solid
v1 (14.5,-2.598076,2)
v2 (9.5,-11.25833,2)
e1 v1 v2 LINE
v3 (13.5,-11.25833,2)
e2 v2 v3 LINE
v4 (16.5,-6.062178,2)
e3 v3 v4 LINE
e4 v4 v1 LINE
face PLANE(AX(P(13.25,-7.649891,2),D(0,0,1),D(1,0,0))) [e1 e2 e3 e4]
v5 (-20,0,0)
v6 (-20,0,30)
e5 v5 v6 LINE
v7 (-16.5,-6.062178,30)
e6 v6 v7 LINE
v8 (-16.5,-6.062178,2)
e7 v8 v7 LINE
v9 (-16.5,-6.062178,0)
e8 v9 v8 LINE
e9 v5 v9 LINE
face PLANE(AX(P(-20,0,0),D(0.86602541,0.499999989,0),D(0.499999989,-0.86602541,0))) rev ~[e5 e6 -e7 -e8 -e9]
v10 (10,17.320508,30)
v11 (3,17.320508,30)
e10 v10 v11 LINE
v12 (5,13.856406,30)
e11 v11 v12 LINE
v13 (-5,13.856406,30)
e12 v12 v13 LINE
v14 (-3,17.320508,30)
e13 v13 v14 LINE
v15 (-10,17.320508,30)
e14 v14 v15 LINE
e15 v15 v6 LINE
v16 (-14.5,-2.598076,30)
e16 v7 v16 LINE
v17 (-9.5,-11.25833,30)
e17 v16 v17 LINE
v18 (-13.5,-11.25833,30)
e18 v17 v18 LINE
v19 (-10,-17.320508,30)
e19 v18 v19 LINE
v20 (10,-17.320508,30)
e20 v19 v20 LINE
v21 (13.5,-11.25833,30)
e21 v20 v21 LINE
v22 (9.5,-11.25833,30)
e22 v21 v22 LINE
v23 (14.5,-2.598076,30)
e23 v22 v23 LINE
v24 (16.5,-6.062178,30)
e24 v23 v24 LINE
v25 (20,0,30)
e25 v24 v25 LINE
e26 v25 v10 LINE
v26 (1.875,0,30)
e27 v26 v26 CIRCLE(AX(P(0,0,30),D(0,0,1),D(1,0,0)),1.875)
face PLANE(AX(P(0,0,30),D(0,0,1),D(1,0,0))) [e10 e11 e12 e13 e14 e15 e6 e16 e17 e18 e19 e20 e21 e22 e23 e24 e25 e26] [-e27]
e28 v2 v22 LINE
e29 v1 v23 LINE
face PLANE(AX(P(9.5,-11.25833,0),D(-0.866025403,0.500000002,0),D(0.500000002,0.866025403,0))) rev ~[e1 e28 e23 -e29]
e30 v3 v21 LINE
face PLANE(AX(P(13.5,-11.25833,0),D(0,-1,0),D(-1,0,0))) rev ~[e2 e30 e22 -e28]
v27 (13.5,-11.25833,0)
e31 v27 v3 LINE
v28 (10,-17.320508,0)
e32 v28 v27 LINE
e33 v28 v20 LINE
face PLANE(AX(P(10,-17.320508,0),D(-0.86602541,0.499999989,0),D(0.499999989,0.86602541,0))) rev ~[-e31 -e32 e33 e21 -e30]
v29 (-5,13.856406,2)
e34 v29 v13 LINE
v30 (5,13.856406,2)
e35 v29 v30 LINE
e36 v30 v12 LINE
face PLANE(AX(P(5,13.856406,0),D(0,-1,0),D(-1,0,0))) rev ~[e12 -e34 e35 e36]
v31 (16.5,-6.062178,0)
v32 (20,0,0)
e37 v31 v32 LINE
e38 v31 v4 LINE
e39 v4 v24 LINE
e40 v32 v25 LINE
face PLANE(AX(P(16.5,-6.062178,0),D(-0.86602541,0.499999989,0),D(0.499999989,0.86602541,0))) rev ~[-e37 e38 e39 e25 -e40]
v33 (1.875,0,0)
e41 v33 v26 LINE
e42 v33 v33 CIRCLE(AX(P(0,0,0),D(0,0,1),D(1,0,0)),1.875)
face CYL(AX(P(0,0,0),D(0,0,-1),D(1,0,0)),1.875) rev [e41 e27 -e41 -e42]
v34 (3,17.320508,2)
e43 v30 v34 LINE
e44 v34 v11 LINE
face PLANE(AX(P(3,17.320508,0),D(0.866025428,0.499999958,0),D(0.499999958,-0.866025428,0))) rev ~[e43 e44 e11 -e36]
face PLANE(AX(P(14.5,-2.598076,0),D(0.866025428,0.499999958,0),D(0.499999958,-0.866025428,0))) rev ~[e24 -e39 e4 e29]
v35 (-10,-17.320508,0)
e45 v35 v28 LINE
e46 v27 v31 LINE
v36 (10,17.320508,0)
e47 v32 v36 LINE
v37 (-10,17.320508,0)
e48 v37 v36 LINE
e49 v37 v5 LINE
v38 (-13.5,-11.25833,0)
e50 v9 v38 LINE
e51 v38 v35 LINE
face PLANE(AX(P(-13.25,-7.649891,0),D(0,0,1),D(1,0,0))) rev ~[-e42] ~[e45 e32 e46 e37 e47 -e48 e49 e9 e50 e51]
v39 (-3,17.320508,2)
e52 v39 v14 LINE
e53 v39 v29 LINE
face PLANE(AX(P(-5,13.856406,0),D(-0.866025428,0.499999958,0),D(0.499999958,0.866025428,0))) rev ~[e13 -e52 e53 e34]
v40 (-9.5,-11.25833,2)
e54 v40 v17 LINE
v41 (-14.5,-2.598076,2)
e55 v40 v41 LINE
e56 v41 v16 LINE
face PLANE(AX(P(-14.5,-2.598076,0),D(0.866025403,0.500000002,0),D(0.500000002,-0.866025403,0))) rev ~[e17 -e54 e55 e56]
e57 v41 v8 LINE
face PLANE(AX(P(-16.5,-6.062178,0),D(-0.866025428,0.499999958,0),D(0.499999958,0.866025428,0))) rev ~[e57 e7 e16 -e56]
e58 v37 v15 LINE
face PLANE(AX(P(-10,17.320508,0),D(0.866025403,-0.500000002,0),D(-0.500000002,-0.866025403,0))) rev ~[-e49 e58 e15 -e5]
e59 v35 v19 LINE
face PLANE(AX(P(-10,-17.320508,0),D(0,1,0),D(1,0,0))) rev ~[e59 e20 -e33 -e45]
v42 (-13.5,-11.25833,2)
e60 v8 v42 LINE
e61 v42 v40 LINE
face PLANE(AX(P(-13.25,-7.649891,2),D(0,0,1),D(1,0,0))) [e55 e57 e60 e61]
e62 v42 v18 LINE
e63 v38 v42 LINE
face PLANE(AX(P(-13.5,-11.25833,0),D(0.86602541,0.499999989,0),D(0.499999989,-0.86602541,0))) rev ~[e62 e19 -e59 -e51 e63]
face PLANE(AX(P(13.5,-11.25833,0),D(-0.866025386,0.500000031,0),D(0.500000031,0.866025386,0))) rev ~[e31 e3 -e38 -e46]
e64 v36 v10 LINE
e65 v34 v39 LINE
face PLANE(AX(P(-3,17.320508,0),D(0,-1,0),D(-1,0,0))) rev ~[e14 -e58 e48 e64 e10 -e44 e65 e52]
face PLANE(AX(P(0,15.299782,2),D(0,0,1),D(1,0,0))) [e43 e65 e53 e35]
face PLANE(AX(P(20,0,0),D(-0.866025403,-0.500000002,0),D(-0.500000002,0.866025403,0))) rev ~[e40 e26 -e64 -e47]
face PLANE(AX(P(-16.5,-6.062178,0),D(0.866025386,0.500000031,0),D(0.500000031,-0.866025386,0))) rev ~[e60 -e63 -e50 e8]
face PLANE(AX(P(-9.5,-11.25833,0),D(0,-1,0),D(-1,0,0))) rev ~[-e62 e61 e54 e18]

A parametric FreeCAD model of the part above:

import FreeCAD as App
import Part
import Sketcher
from FreeCAD import Vector
Q = App.Units.Quantity


def add_polygon(sketch, points):
    """Adds a closed chain of lines whose ends are joined by coincident constraints."""
    first, n = sketch.GeometryCount, len(points)
    for a, b in zip(points, points[1:] + points[:1]):
        sketch.addGeometry(Part.LineSegment(App.Vector(*a, 0), App.Vector(*b, 0)), False)
    for i in range(n):
        sketch.addConstraint(Sketcher.Constraint("Coincident", first + i, 2, first + (i + 1) % n, 1))

doc = App.newDocument("Part")
body = doc.addObject("PartDesign::Body", "Body")

# Sketch on XY plane
sketch1 = body.newObject("Sketcher::SketchObject", "Sketch")
sketch1.AttachmentSupport = (doc.getObject("XY_Plane"), [""])
sketch1.MapMode = "FlatFace"
add_polygon(sketch1, [(16.5, -6.1), (20, 0), (10, 17.3), (3, 17.3), (5, 13.9), (-5, 13.9), (-3, 17.3), (-10, 17.3), (-20, 0), (-16.5, -6.1), (-14.5, -2.6), (-9.5, -11.3), (-13.5, -11.3), (-10, -17.3), (10, -17.3), (13.5, -11.3), (9.5, -11.3), (14.5, -2.6)])  # lines 0-17
sketch1.addGeometry(Part.Circle(Vector(0, 0, 0), Vector(0, 0, 1), 1.9), False)  # 18
sketch1.addConstraint(Sketcher.Constraint("Horizontal", 2))
sketch1.addConstraint(Sketcher.Constraint("Horizontal", 4))
sketch1.addConstraint(Sketcher.Constraint("Horizontal", 6))
sketch1.addConstraint(Sketcher.Constraint("Horizontal", 11))
sketch1.addConstraint(Sketcher.Constraint("Horizontal", 13))
sketch1.addConstraint(Sketcher.Constraint("Horizontal", 15))
sketch1.addConstraint(Sketcher.Constraint("Coincident", 18, 3, -1, 1))
sketch1.addConstraint(Sketcher.Constraint("Symmetric", 0, 2, 7, 2, -1, 1))
sketch1.addConstraint(Sketcher.Constraint("Symmetric", 1, 2, 12, 2, -1, 1))
sketch1.addConstraint(Sketcher.Constraint("Symmetric", 6, 2, 13, 2, -1, 1))
sketch1.addConstraint(Sketcher.Constraint("Symmetric", 11, 2, 14, 2, -2))
sketch1.addConstraint(Sketcher.Constraint("Symmetric", 9, 2, 16, 2, -2))
sketch1.addConstraint(Sketcher.Constraint("Symmetric", 8, 2, 17, 2, -2))
sketch1.addConstraint(Sketcher.Constraint("PointOnObject", 0, 2, -1))
sketch1.addConstraint(Sketcher.Constraint("Parallel", 1, 3))
sketch1.addConstraint(Sketcher.Constraint("Parallel", 0, 5))
sketch1.addConstraint(Sketcher.Constraint("Parallel", 5, 7))
sketch1.addConstraint(Sketcher.Constraint("Parallel", 3, 8))
sketch1.addConstraint(Sketcher.Constraint("Parallel", 7, 9))
sketch1.addConstraint(Sketcher.Constraint("Parallel", 8, 10))
sketch1.addConstraint(Sketcher.Constraint("Parallel", 10, 12))
sketch1.addConstraint(Sketcher.Constraint("Parallel", 14, 16))
sketch1.addConstraint(Sketcher.Constraint("Equal", 2, 6))
sketch1.addConstraint(Sketcher.Constraint("Equal", 5, 9))
sketch1.addConstraint(Sketcher.Constraint("Equal", 8, 12))
sketch1.addConstraint(Sketcher.Constraint("Diameter", 18, 3.75))
sketch1.addConstraint(Sketcher.Constraint("DistanceX", 2, 2, 2, 1, 7.0))
sketch1.addConstraint(Sketcher.Constraint("DistanceX", 4, 2, 4, 1, 10.0))
sketch1.addConstraint(Sketcher.Constraint("DistanceX", 11, 2, 11, 1, 4.0))
sketch1.addConstraint(Sketcher.Constraint("Angle", 0, Q("60.000001 deg")))
sketch1.addConstraint(Sketcher.Constraint("Distance", 0, 7.0))
sketch1.addConstraint(Sketcher.Constraint("Distance", 1, 20.0))
pad1 = body.newObject("PartDesign::Pad", "Pad")
pad1.Profile = sketch1
pad1.Length = 30

# Sketch on XY plane
sketch2 = body.newObject("Sketcher::SketchObject", "Sketch001")
sketch2.AttachmentSupport = (doc.getObject("XY_Plane"), [""])
sketch2.MapMode = "FlatFace"
add_polygon(sketch2, [(-16.5, -6.1), (-13.5, -11.3), (-9.5, -11.3), (-14.5, -2.6)])  # lines 0-3
add_polygon(sketch2, [(13.5, -11.3), (16.5, -6.1), (14.5, -2.6), (9.5, -11.3)])  # lines 4-7
add_polygon(sketch2, [(5, 13.9), (3, 17.3), (-3, 17.3), (-5, 13.9)])  # lines 8-11
sketch2.addConstraint(Sketcher.Constraint("Horizontal", 1))
sketch2.addConstraint(Sketcher.Constraint("Horizontal", 7))
sketch2.addConstraint(Sketcher.Constraint("Horizontal", 9))
sketch2.addConstraint(Sketcher.Constraint("Horizontal", 11))
sketch2.addConstraint(Sketcher.Constraint("Symmetric", 3, 2, 4, 2, -2))
sketch2.addConstraint(Sketcher.Constraint("Symmetric", 2, 2, 5, 2, -2))
sketch2.addConstraint(Sketcher.Constraint("Symmetric", 1, 2, 6, 2, -2))
sketch2.addConstraint(Sketcher.Constraint("Parallel", 0, 2))
sketch2.addConstraint(Sketcher.Constraint("Parallel", 3, 4))
sketch2.addConstraint(Sketcher.Constraint("Parallel", 2, 5))
sketch2.addConstraint(Sketcher.Constraint("Parallel", 5, 8))
sketch2.addConstraint(Sketcher.Constraint("Parallel", 6, 10))
sketch2.addConstraint(Sketcher.Constraint("Equal", 5, 8))
sketch2.addConstraint(Sketcher.Constraint("DistanceX", 1, 1, 1, 2, 4.0))
sketch2.addConstraint(Sketcher.Constraint("DistanceX", 9, 2, 9, 1, 6.0))
sketch2.addConstraint(Sketcher.Constraint("Angle", 0, Q("-59.999998 deg")))
sketch2.addConstraint(Sketcher.Constraint("Distance", 0, 6.0))
sketch2.addConstraint(Sketcher.Constraint("DistanceX", -1, 1, 8, 2, 3.0))
sketch2.addConstraint(Sketcher.Constraint("DistanceX", 1, 2, 4, 2, 26.0))
sketch2.addConstraint(Sketcher.Constraint("DistanceY", 0, 2, -1, 1, 11.25833))
sketch2.addConstraint(Sketcher.Constraint("DistanceY", -1, 1, 8, 2, 17.320508))
pad2 = body.newObject("PartDesign::Pad", "Pad001")
pad2.Profile = sketch2
pad2.Length = 2

doc.recompute()
